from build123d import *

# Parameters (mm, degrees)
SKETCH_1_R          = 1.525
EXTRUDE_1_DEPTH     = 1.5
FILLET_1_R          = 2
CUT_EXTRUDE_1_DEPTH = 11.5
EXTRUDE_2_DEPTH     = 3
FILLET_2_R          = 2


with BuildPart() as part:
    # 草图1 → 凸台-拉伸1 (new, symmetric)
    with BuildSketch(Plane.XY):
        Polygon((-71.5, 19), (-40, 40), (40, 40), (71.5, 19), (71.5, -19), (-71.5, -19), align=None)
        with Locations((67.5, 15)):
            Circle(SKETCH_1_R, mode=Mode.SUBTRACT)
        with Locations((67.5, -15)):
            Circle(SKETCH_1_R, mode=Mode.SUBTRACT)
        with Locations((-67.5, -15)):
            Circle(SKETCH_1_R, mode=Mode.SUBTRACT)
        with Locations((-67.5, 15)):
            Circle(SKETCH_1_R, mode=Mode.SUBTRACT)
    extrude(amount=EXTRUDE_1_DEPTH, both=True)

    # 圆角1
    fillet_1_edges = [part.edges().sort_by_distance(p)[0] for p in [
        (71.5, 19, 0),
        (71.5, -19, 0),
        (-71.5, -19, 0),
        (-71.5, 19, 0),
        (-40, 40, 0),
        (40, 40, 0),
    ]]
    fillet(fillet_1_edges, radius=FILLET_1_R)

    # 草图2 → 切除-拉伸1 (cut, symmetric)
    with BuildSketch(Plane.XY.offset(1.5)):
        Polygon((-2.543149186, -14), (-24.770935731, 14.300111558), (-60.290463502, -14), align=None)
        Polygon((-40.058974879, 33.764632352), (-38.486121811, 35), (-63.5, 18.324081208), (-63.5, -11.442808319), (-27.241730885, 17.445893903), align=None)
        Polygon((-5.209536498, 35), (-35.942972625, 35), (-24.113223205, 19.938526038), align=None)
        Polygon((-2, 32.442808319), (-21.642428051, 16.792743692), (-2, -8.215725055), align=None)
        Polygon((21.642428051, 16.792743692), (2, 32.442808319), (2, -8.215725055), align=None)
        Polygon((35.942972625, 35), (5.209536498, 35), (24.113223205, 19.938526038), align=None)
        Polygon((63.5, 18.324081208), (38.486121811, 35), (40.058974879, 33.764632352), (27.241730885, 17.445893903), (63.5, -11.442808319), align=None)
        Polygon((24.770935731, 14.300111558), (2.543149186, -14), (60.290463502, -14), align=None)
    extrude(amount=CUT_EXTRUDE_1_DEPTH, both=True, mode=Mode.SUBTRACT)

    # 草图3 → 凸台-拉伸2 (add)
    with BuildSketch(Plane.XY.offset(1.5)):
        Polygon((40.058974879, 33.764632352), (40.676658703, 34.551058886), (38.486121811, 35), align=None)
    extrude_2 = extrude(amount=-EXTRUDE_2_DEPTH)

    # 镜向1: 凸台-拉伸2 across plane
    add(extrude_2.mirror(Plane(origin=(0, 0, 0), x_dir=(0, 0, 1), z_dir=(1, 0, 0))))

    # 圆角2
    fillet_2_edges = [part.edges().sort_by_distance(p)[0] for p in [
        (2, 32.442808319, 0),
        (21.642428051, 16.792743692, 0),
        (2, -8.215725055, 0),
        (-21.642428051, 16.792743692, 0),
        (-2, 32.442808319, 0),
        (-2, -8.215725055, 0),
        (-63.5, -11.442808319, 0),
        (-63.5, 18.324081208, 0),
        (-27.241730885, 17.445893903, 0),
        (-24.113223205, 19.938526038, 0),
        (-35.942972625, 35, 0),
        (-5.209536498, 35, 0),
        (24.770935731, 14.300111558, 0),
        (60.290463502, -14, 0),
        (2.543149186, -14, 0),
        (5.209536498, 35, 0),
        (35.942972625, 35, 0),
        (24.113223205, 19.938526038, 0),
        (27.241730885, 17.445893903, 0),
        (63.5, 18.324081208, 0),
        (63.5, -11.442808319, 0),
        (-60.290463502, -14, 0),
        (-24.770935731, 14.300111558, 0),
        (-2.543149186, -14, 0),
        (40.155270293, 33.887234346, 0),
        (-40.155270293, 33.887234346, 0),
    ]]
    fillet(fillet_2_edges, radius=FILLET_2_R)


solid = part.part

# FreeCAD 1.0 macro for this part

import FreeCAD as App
import Part
import Sketcher

V = App.Vector


def edges_at(feature, points):
    """Names of the edges that pass closest to the given points."""
    edges = feature.Shape.Edges
    near = lambda p: min(range(len(edges)), key=lambda i: edges[i].distToShape(Part.Vertex(*p))[0])
    return sorted({f"Edge{near(p) + 1}" for p in points})

doc = App.newDocument("Part")
params = doc.addObject("Spreadsheet::Sheet", "Params")
for row, (alias, value) in enumerate([
    ("sketch1_diameter", "3.05 mm"),
    ("sketch1_width", "143 mm"),
    ("sketch1_width2", "80 mm"),
    ("sketch1_height", "38 mm"),
    ("pad1_length", "3 mm"),
    ("fillet_radius", "2 mm"),
    ("sketch2_length", "2 mm"),
    ("pocket1_length", "23 mm"),
    ("sketch3_length", "1 mm"),
    ("sketch3_length2", "2 mm"),
    ("pad2_length", "3 mm"),
    ("fillet2_radius", "2 mm"),
], start=1):
    params.set(f"A{row}", alias)
    params.set(f"B{row}", "=" + value)
    params.setAlias(f"B{row}", alias)

body = doc.addObject("PartDesign::Body", "Body")

# Sketch on XY plane
sketch1 = body.newObject("Sketcher::SketchObject", "Sketch")
sketch1.AttachmentSupport = (doc.getObject("XY_Plane"), [""])
sketch1.MapMode = "FlatFace"
sketch1.addGeometry([
    Part.LineSegment(V(-40, 40, 0), V(-71.5, 19, 0)),  # 0
    Part.LineSegment(V(-71.5, 19, 0), V(-71.5, -19, 0)),  # 1
    Part.LineSegment(V(-71.5, -19, 0), V(71.5, -19, 0)),  # 2
    Part.LineSegment(V(71.5, -19, 0), V(71.5, 19, 0)),  # 3
    Part.LineSegment(V(71.5, 19, 0), V(40, 40, 0)),  # 4
    Part.LineSegment(V(40, 40, 0), V(-40, 40, 0)),  # 5
    Part.Circle(V(67.5, -15, 0), V(0, 0, 1), 1.5),  # 6
    Part.Circle(V(-67.5, -15, 0), V(0, 0, 1), 1.5),  # 7
    Part.Circle(V(67.5, 15, 0), V(0, 0, 1), 1.5),  # 8
    Part.Circle(V(-67.5, 15, 0), V(0, 0, 1), 1.5),  # 9
], False)
sketch1.addConstraint([
    Sketcher.Constraint("Coincident", 0, 2, 1, 1),
    Sketcher.Constraint("Coincident", 1, 2, 2, 1),
    Sketcher.Constraint("Coincident", 2, 2, 3, 1),
    Sketcher.Constraint("Coincident", 3, 2, 4, 1),
    Sketcher.Constraint("Coincident", 4, 2, 5, 1),
    Sketcher.Constraint("Coincident", 5, 2, 0, 1),
    Sketcher.Constraint("Vertical", 1),
    Sketcher.Constraint("Horizontal", 2),
    Sketcher.Constraint("Vertical", 3),
    Sketcher.Constraint("Horizontal", 5),
    Sketcher.Constraint("Equal", 6, 7),
    Sketcher.Constraint("Equal", 7, 8),
    Sketcher.Constraint("Equal", 8, 9),
    Sketcher.Constraint("Symmetric", 7, 3, 8, 3, -1, 1),
    Sketcher.Constraint("Symmetric", 6, 3, 9, 3, -1, 1),
    Sketcher.Constraint("Symmetric", 0, 2, 2, 2, -1, 1),
    Sketcher.Constraint("Symmetric", 6, 3, 7, 3, -2),
    Sketcher.Constraint("Horizontal", 0, 2, 3, 2),
    Sketcher.Constraint("Equal", 0, 4),
    Sketcher.Constraint("Diameter", 6, 3.05),
    Sketcher.Constraint("DistanceX", 2, 1, 2, 2, 143.0),
    Sketcher.Constraint("DistanceX", 5, 2, 5, 1, 80.0),
    Sketcher.Constraint("DistanceY", 1, 2, 1, 1, 38.0),
    Sketcher.Constraint("DistanceY", 6, 3, -1, 1, 15.0),
    Sketcher.Constraint("DistanceY", -1, 1, 4, 2, 40.0),
    Sketcher.Constraint("DistanceX", 7, 3, 6, 3, 135.0),
])
sketch1.setExpression("Constraints[19]", "Params.sketch1_diameter")
sketch1.setExpression("Constraints[20]", "Params.sketch1_width")
sketch1.setExpression("Constraints[21]", "Params.sketch1_width2")
sketch1.setExpression("Constraints[22]", "Params.sketch1_height")
pad1 = body.newObject("PartDesign::Pad", "Pad")
pad1.Profile = sketch1
pad1.setExpression("Length", "Params.pad1_length")
pad1.Midplane = True
doc.recompute()

fillet = body.newObject("PartDesign::Fillet", "Fillet")
fillet.Base = (pad1, edges_at(pad1, [
    (71.5, 19, 0),
    (71.5, -19, 0),
    (-71.5, -19, 0),
    (-71.5, 19, 0),
    (-40, 40, 0),
    (40, 40, 0),
]))
fillet.setExpression("Radius", "Params.fillet_radius")

# Sketch on XY plane
sketch2 = body.newObject("Sketcher::SketchObject", "Sketch001")
sketch2.AttachmentSupport = (doc.getObject("XY_Plane"), [""])
sketch2.MapMode = "FlatFace"
sketch2.AttachmentOffset = App.Placement(V(0, 0, 1.5), App.Rotation())
sketch2.addGeometry([
    Part.LineSegment(V(-2.5, -14, 0), V(-24.8, 14.3, 0)),  # 0
    Part.LineSegment(V(-24.8, 14.3, 0), V(-60.3, -14, 0)),  # 1
    Part.LineSegment(V(-60.3, -14, 0), V(-2.5, -14, 0)),  # 2
    Part.LineSegment(V(-40.1, 33.8, 0), V(-38.5, 35, 0)),  # 3
    Part.LineSegment(V(-38.5, 35, 0), V(-63.5, 18.3, 0)),  # 4
    Part.LineSegment(V(-63.5, 18.3, 0), V(-63.5, -11.4, 0)),  # 5
    Part.LineSegment(V(-63.5, -11.4, 0), V(-27.2, 17.4, 0)),  # 6
    Part.LineSegment(V(-27.2, 17.4, 0), V(-40.1, 33.8, 0)),  # 7
    Part.LineSegment(V(-5.2, 35, 0), V(-35.9, 35, 0)),  # 8
    Part.LineSegment(V(-35.9, 35, 0), V(-24.1, 19.9, 0)),  # 9
    Part.LineSegment(V(-24.1, 19.9, 0), V(-5.2, 35, 0)),  # 10
    Part.LineSegment(V(-2, 32.4, 0), V(-21.6, 16.8, 0)),  # 11
    Part.LineSegment(V(-21.6, 16.8, 0), V(-2, -8.2, 0)),  # 12
    Part.LineSegment(V(-2, -8.2, 0), V(-2, 32.4, 0)),  # 13
    Part.LineSegment(V(21.6, 16.8, 0), V(2, 32.4, 0)),  # 14
    Part.LineSegment(V(2, 32.4, 0), V(2, -8.2, 0)),  # 15
    Part.LineSegment(V(2, -8.2, 0), V(21.6, 16.8, 0)),  # 16
    Part.LineSegment(V(35.9, 35, 0), V(5.2, 35, 0)),  # 17
    Part.LineSegment(V(5.2, 35, 0), V(24.1, 19.9, 0)),  # 18
    Part.LineSegment(V(24.1, 19.9, 0), V(35.9, 35, 0)),  # 19
    Part.LineSegment(V(63.5, 18.3, 0), V(38.5, 35, 0)),  # 20
    Part.LineSegment(V(38.5, 35, 0), V(40.1, 33.8, 0)),  # 21
    Part.LineSegment(V(40.1, 33.8, 0), V(27.2, 17.4, 0)),  # 22
    Part.LineSegment(V(27.2, 17.4, 0), V(63.5, -11.4, 0)),  # 23
    Part.LineSegment(V(63.5, -11.4, 0), V(63.5, 18.3, 0)),  # 24
    Part.LineSegment(V(24.8, 14.3, 0), V(2.5, -14, 0)),  # 25
    Part.LineSegment(V(2.5, -14, 0), V(60.3, -14, 0)),  # 26
    Part.LineSegment(V(60.3, -14, 0), V(24.8, 14.3, 0)),  # 27
], False)
sketch2.addConstraint([
    Sketcher.Constraint("Coincident", 0, 2, 1, 1),
    Sketcher.Constraint("Coincident", 1, 2, 2, 1),
    Sketcher.Constraint("Coincident", 2, 2, 0, 1),
    Sketcher.Constraint("Coincident", 3, 2, 4, 1),
    Sketcher.Constraint("Coincident", 4, 2, 5, 1),
    Sketcher.Constraint("Coincident", 5, 2, 6, 1),
    Sketcher.Constraint("Coincident", 6, 2, 7, 1),
    Sketcher.Constraint("Coincident", 7, 2, 3, 1),
    Sketcher.Constraint("Coincident", 8, 2, 9, 1),
    Sketcher.Constraint("Coincident", 9, 2, 10, 1),
    Sketcher.Constraint("Coincident", 10, 2, 8, 1),
    Sketcher.Constraint("Coincident", 11, 2, 12, 1),
    Sketcher.Constraint("Coincident", 12, 2, 13, 1),
    Sketcher.Constraint("Coincident", 13, 2, 11, 1),
    Sketcher.Constraint("Coincident", 14, 2, 15, 1),
    Sketcher.Constraint("Coincident", 15, 2, 16, 1),
    Sketcher.Constraint("Coincident", 16, 2, 14, 1),
    Sketcher.Constraint("Coincident", 17, 2, 18, 1),
    Sketcher.Constraint("Coincident", 18, 2, 19, 1),
    Sketcher.Constraint("Coincident", 19, 2, 17, 1),
    Sketcher.Constraint("Coincident", 20, 2, 21, 1),
    Sketcher.Constraint("Coincident", 21, 2, 22, 1),
    Sketcher.Constraint("Coincident", 22, 2, 23, 1),
    Sketcher.Constraint("Coincident", 23, 2, 24, 1),
    Sketcher.Constraint("Coincident", 24, 2, 20, 1),
    Sketcher.Constraint("Coincident", 25, 2, 26, 1),
    Sketcher.Constraint("Coincident", 26, 2, 27, 1),
    Sketcher.Constraint("Coincident", 27, 2, 25, 1),
    Sketcher.Constraint("Horizontal", 2),
    Sketcher.Constraint("Vertical", 5),
    Sketcher.Constraint("Horizontal", 8),
    Sketcher.Constraint("Vertical", 13),
    Sketcher.Constraint("Vertical", 15),
    Sketcher.Constraint("Horizontal", 17),
    Sketcher.Constraint("Vertical", 24),
    Sketcher.Constraint("Horizontal", 26),
    Sketcher.Constraint("Symmetric", 13, 2, 14, 2, -2),
    Sketcher.Constraint("Symmetric", 11, 2, 16, 2, -2),
    Sketcher.Constraint("Symmetric", 10, 2, 17, 2, -2),
    Sketcher.Constraint("Symmetric", 9, 2, 18, 2, -2),
    Sketcher.Constraint("Symmetric", 3, 2, 20, 2, -2),
    Sketcher.Constraint("Symmetric", 7, 2, 21, 2, -2),
    Sketcher.Constraint("Symmetric", 6, 2, 22, 2, -2),
    Sketcher.Constraint("Symmetric", 5, 2, 23, 2, -2),
    Sketcher.Constraint("Symmetric", 2, 2, 25, 2, -2),
    Sketcher.Constraint("Symmetric", 0, 2, 27, 2, -2),
    Sketcher.Constraint("Perpendicular", 0, 3),
    Sketcher.Constraint("Parallel", 1, 6),
    Sketcher.Constraint("Perpendicular", 3, 7),
    Sketcher.Constraint("Parallel", 7, 9),
    Sketcher.Constraint("Parallel", 6, 10),
    Sketcher.Constraint("Parallel", 10, 11),
    Sketcher.Constraint("Parallel", 9, 12),
    Sketcher.Constraint("Parallel", 16, 19),
    Sketcher.Constraint("Perpendicular", 19, 21),
    Sketcher.Constraint("Parallel", 23, 27),
    Sketcher.Constraint("Horizontal", 3, 2, 8, 2),
    Sketcher.Constraint("Horizontal", 4, 2, 24, 2),
    Sketcher.Constraint("Distance", 3, 2.0),
    Sketcher.Constraint("DistanceY", 1, 2, -1, 1, 14.0),
    Sketcher.Constraint("DistanceY", -1, 1, 3, 2, 35.0),
    Sketcher.Constraint("DistanceX", 12, 2, -1, 1, 2.0),
    Sketcher.Constraint("DistanceX", 4, 2, -1, 1, 63.5),
    Sketcher.Constraint("DistanceY", 5, 2, 5, 1, 29.76689),
    Sketcher.Constraint("DistanceX", 3, 2, 9, 2, 14.372899),
    Sketcher.Constraint("DistanceX", 0, 2, 10, 2, 19.561399),
    Sketcher.Constraint("DistanceX", 2, 2, 25, 2, 5.086298),
    Sketcher.Constraint("Distance", 1, 45.41512),
    Sketcher.Constraint("Distance", 4, 30.06294),
    Sketcher.Constraint("DistanceX", 2, 1, 2, 2, 57.747314),
    Sketcher.Constraint("DistanceX", 8, 2, 8, 1, 30.733436),
    Sketcher.Constraint("DistanceY", 13, 1, 13, 2, 40.658533),
    Sketcher.Constraint("DistanceY", -1, 1, 0, 2, 14.300112),
    Sketcher.Constraint("DistanceY", -1, 1, 13, 2, 32.442808),
])
sketch2.setExpression("Constraints[58]", "Params.sketch2_length")
pocket1 = body.newObject("PartDesign::Pocket", "Pocket")
pocket1.Profile = sketch2
pocket1.setExpression("Length", "Params.pocket1_length")
pocket1.Midplane = True

# Sketch on XY plane
sketch3 = body.newObject("Sketcher::SketchObject", "Sketch002")
sketch3.AttachmentSupport = (doc.getObject("XY_Plane"), [""])
sketch3.MapMode = "FlatFace"
sketch3.AttachmentOffset = App.Placement(V(0, 0, 1.5), App.Rotation())
sketch3.addGeometry([
    Part.LineSegment(V(40.1, 33.8, 0), V(40.7, 34.6, 0)),
    Part.LineSegment(V(40.7, 34.6, 0), V(38.5, 35, 0)),
    Part.LineSegment(V(38.5, 35, 0), V(40.1, 33.8, 0)),
], False)
sketch3.addConstraint([
    Sketcher.Constraint("Coincident", 0, 2, 1, 1),
    Sketcher.Constraint("Coincident", 1, 2, 2, 1),
    Sketcher.Constraint("Coincident", 2, 2, 0, 1),
    Sketcher.Constraint("Perpendicular", 0, 2),
    Sketcher.Constraint("Distance", 0, 1.0),
    Sketcher.Constraint("Distance", 2, 2.0),
    Sketcher.Constraint("DistanceY", -1, 1, 1, 2, 35.0),
    Sketcher.Constraint("DistanceX", -1, 1, 0, 2, 40.676659),
    Sketcher.Constraint("DistanceY", -1, 1, 0, 2, 34.551059),
])
sketch3.setExpression("Constraints[4]", "Params.sketch3_length")
sketch3.setExpression("Constraints[5]", "Params.sketch3_length2")
pad2 = body.newObject("PartDesign::Pad", "Pad001")
pad2.Profile = sketch3
pad2.setExpression("Length", "Params.pad2_length")
pad2.Reversed = True
doc.recompute()

mirrored = body.newObject("PartDesign::Mirrored", "Mirrored")
mirrored.Originals = [pad2]
mirrored.MirrorPlane = (doc.getObject("YZ_Plane"), [""])
body.Tip = mirrored
doc.recompute()

fillet2 = body.newObject("PartDesign::Fillet", "Fillet001")
fillet2.Base = (mirrored, edges_at(mirrored, [
    (2, 32.443, 0),
    (21.642, 16.793, 0),
    (2, -8.216, 0),
    (-21.642, 16.793, 0),
    (-2, 32.443, 0),
    (-2, -8.216, 0),
    (-63.5, -11.443, 0),
    (-63.5, 18.324, 0),
    (-27.242, 17.446, 0),
    (-24.113, 19.939, 0),
    (-35.943, 35, 0),
    (-5.21, 35, 0),
    (24.771, 14.3, 0),
    (60.29, -14, 0),
    (2.543, -14, 0),
    (5.21, 35, 0),
    (35.943, 35, 0),
    (24.113, 19.939, 0),
    (27.242, 17.446, 0),
    (63.5, 18.324, 0),
    (63.5, -11.443, 0),
    (-60.29, -14, 0),
    (-24.771, 14.3, 0),
    (-2.543, -14, 0),
    (40.155, 33.887, 0),
    (-40.155, 33.887, 0),
]))
fillet2.setExpression("Radius", "Params.fillet2_radius")

doc.recompute()
